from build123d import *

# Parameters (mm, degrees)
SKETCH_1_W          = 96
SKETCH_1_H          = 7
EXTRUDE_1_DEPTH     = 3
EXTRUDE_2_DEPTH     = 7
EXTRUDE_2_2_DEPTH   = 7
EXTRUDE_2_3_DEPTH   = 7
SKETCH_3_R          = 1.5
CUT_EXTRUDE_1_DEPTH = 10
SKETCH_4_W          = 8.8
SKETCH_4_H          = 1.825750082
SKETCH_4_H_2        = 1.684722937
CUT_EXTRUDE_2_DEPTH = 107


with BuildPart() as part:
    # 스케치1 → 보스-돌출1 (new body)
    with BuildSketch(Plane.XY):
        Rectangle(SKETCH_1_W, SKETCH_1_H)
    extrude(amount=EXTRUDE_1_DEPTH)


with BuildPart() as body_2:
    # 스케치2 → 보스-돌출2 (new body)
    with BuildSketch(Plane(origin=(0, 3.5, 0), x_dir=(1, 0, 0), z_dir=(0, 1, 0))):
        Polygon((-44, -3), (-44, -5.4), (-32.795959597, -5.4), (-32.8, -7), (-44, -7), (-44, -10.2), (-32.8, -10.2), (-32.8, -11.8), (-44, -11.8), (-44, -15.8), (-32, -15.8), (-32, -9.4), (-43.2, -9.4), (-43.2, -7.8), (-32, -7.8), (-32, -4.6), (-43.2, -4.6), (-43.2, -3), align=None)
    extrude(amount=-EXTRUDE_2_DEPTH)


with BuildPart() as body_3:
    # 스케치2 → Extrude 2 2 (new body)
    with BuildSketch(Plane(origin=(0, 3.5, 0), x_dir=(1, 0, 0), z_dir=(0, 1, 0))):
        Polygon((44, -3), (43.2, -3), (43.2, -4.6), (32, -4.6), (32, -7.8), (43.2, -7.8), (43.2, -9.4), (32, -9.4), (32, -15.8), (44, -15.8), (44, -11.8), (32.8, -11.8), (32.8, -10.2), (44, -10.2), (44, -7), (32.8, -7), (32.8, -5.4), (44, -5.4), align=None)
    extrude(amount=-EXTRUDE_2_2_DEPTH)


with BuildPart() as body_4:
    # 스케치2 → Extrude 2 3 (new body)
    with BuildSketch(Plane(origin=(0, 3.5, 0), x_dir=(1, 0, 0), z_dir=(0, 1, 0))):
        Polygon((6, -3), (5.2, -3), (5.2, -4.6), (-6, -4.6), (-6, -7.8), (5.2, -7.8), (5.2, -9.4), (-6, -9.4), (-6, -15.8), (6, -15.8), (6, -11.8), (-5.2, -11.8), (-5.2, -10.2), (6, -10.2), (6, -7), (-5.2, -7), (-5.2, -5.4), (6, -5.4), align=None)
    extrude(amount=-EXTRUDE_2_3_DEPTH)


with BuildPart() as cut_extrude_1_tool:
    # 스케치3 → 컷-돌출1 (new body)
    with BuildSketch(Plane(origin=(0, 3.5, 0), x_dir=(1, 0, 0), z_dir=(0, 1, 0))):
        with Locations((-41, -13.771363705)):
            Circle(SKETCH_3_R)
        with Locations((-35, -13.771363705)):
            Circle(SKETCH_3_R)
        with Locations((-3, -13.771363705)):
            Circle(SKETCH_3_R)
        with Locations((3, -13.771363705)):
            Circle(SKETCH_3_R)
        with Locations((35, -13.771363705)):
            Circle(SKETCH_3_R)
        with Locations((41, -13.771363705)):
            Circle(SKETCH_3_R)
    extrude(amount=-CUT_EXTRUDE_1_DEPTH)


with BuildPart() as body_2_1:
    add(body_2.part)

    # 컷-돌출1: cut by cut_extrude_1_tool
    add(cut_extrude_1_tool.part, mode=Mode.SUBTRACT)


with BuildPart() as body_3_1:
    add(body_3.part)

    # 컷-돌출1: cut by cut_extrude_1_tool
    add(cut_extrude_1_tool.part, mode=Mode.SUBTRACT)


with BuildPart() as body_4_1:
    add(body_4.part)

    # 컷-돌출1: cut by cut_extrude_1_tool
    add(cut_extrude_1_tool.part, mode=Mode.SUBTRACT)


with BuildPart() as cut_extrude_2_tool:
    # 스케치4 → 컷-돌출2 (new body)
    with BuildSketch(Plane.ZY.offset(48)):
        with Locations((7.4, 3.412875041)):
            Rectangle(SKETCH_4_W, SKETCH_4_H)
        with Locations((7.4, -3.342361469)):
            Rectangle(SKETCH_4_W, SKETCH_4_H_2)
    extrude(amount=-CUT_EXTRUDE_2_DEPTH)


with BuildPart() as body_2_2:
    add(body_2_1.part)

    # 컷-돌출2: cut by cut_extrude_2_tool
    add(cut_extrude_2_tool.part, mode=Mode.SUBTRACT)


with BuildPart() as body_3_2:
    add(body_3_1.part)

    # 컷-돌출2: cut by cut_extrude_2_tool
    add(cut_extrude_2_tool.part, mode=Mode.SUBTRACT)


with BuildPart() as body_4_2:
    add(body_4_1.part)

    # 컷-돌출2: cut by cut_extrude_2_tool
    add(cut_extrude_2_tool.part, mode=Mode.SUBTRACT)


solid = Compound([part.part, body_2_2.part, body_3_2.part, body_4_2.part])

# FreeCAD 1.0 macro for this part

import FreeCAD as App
import Part
import Sketcher
Q = App.Units.Quantity

doc = App.newDocument("Part")
body = doc.addObject("PartDesign::Body", "Body")

sketch1 = doc.addObject("Sketcher::SketchObject", "Sketch")
body.addObject(sketch1)
sketch1.AttachmentSupport = (doc.XY_Plane, [""])
sketch1.MapMode = "FlatFace"
sketch1.addGeometry([
    Part.LineSegment(App.Vector(-48, 4, 0), App.Vector(-48, -4, 0)),
    Part.LineSegment(App.Vector(-48, -4, 0), App.Vector(48, -4, 0)),
    Part.LineSegment(App.Vector(48, -4, 0), App.Vector(48, 4, 0)),
    Part.LineSegment(App.Vector(48, 4, 0), App.Vector(-48, 4, 0)),
], False)
sketch1.addConstraint([
    Sketcher.Constraint("Coincident", 0, 2, 1, 1),
    Sketcher.Constraint("Coincident", 1, 2, 2, 1),
    Sketcher.Constraint("Coincident", 2, 2, 3, 1),
    Sketcher.Constraint("Coincident", 3, 2, 0, 1),
    Sketcher.Constraint("Vertical", 0),
    Sketcher.Constraint("Horizontal", 1),
    Sketcher.Constraint("Vertical", 2),
    Sketcher.Constraint("Horizontal", 3),
    Sketcher.Constraint("Symmetric", 0, 2, 2, 2, -1, 1),
    Sketcher.Constraint("DistanceX", 1, 1, 1, 2, Q("96 mm")),
    Sketcher.Constraint("DistanceY", 0, 2, 0, 1, Q("7 mm")),
])
pad1 = doc.addObject("PartDesign::Pad", "Pad")
body.addObject(pad1)
pad1.Profile = sketch1
pad1.Length = 3
body2 = doc.addObject("PartDesign::Body", "Body001")

sketch2 = doc.addObject("Sketcher::SketchObject", "Sketch001")
body2.addObject(sketch2)
sketch2.AttachmentSupport = (doc.getObject("XZ_Plane001"), [""])
sketch2.MapMode = "FlatFace"
sketch2.AttachmentOffset = App.Placement(App.Vector(0, 0, -3.5), App.Rotation())
sketch2.addGeometry([
    Part.LineSegment(App.Vector(-44, 3, 0), App.Vector(-44, 5.4, 0)),
    Part.LineSegment(App.Vector(-44, 5.4, 0), App.Vector(-32.8, 5.4, 0)),
    Part.LineSegment(App.Vector(-32.8, 5.4, 0), App.Vector(-32.8, 7, 0)),
    Part.LineSegment(App.Vector(-32.8, 7, 0), App.Vector(-44, 7, 0)),
    Part.LineSegment(App.Vector(-44, 7, 0), App.Vector(-44, 10.2, 0)),
    Part.LineSegment(App.Vector(-44, 10.2, 0), App.Vector(-32.8, 10.2, 0)),
    Part.LineSegment(App.Vector(-32.8, 10.2, 0), App.Vector(-32.8, 11.8, 0)),
    Part.LineSegment(App.Vector(-32.8, 11.8, 0), App.Vector(-44, 11.8, 0)),
    Part.LineSegment(App.Vector(-44, 11.8, 0), App.Vector(-44, 15.8, 0)),
    Part.LineSegment(App.Vector(-44, 15.8, 0), App.Vector(-32, 15.8, 0)),
    Part.LineSegment(App.Vector(-32, 15.8, 0), App.Vector(-32, 9.4, 0)),
    Part.LineSegment(App.Vector(-32, 9.4, 0), App.Vector(-43.2, 9.4, 0)),
    Part.LineSegment(App.Vector(-43.2, 9.4, 0), App.Vector(-43.2, 7.8, 0)),
    Part.LineSegment(App.Vector(-43.2, 7.8, 0), App.Vector(-32, 7.8, 0)),
    Part.LineSegment(App.Vector(-32, 7.8, 0), App.Vector(-32, 4.6, 0)),
    Part.LineSegment(App.Vector(-32, 4.6, 0), App.Vector(-43.2, 4.6, 0)),
    Part.LineSegment(App.Vector(-43.2, 4.6, 0), App.Vector(-43.2, 3, 0)),
    Part.LineSegment(App.Vector(-43.2, 3, 0), App.Vector(-44, 3, 0)),
], False)
sketch2.addConstraint([
    Sketcher.Constraint("Coincident", 0, 2, 1, 1),
    Sketcher.Constraint("Coincident", 1, 2, 2, 1),
    Sketcher.Constraint("Coincident", 2, 2, 3, 1),
    Sketcher.Constraint("Coincident", 3, 2, 4, 1),
    Sketcher.Constraint("Coincident", 4, 2, 5, 1),
    Sketcher.Constraint("Coincident", 5, 2, 6, 1),
    Sketcher.Constraint("Coincident", 6, 2, 7, 1),
    Sketcher.Constraint("Coincident", 7, 2, 8, 1),
    Sketcher.Constraint("Coincident", 8, 2, 9, 1),
    Sketcher.Constraint("Coincident", 9, 2, 10, 1),
    Sketcher.Constraint("Coincident", 10, 2, 11, 1),
    Sketcher.Constraint("Coincident", 11, 2, 12, 1),
    Sketcher.Constraint("Coincident", 12, 2, 13, 1),
    Sketcher.Constraint("Coincident", 13, 2, 14, 1),
    Sketcher.Constraint("Coincident", 14, 2, 15, 1),
    Sketcher.Constraint("Coincident", 15, 2, 16, 1),
    Sketcher.Constraint("Coincident", 16, 2, 17, 1),
    Sketcher.Constraint("Coincident", 17, 2, 0, 1),
    Sketcher.Constraint("Vertical", 0),
    Sketcher.Constraint("Horizontal", 1),
    Sketcher.Constraint("Horizontal", 3),
    Sketcher.Constraint("Vertical", 4),
    Sketcher.Constraint("Horizontal", 5),
    Sketcher.Constraint("Vertical", 6),
    Sketcher.Constraint("Horizontal", 7),
    Sketcher.Constraint("Vertical", 8),
    Sketcher.Constraint("Horizontal", 9),
    Sketcher.Constraint("Vertical", 10),
    Sketcher.Constraint("Horizontal", 11),
    Sketcher.Constraint("Vertical", 12),
    Sketcher.Constraint("Horizontal", 13),
    Sketcher.Constraint("Vertical", 14),
    Sketcher.Constraint("Horizontal", 15),
    Sketcher.Constraint("Vertical", 16),
    Sketcher.Constraint("Horizontal", 17),
    Sketcher.Constraint("Vertical", 0, 2, 3, 2),
    Sketcher.Constraint("Vertical", 2, 2, 5, 2),
    Sketcher.Constraint("Vertical", 4, 2, 7, 2),
    Sketcher.Constraint("Vertical", 10, 2, 13, 2),
    Sketcher.Constraint("Vertical", 12, 2, 15, 2),
    Sketcher.Constraint("Equal", 7, 11),
    Sketcher.Constraint("Equal", 6, 12),
    Sketcher.Constraint("Equal", 4, 14),
    Sketcher.Constraint("Equal", 12, 16),
    Sketcher.Constraint("DistanceX", 9, 1, 9, 2, Q("12 mm")),
    Sketcher.Constraint("DistanceY", 8, 1, 8, 2, Q("4 mm")),
    Sketcher.Constraint("DistanceX", 3, 2, 3, 1, Q("11.2 mm")),
    Sketcher.Constraint("DistanceY", 0, 1, 0, 2, Q("2.4 mm")),
    Sketcher.Constraint("DistanceY", 4, 1, 4, 2, Q("3.2 mm")),
    Sketcher.Constraint("DistanceY", 6, 1, 6, 2, Q("1.6 mm")),
    Sketcher.Constraint("DistanceY", 10, 2, 10, 1, Q("6.4 mm")),
    Sketcher.Constraint("DistanceX", 0, 2, -1, 1, Q("44 mm")),
    Sketcher.Constraint("DistanceY", -1, 1, 2, 2, Q("7 mm")),
    Sketcher.Constraint("DistanceX", 1, 1, 1, 2, Q("11.20404 mm")),
])
pad2 = doc.addObject("PartDesign::Pad", "Pad001")
body2.addObject(pad2)
pad2.Profile = sketch2
pad2.Length = 7
body3 = doc.addObject("PartDesign::Body", "Body002")

sketch3 = doc.addObject("Sketcher::SketchObject", "Sketch002")
body3.addObject(sketch3)
sketch3.AttachmentSupport = (doc.getObject("XZ_Plane002"), [""])
sketch3.MapMode = "FlatFace"
sketch3.AttachmentOffset = App.Placement(App.Vector(0, 0, -3.5), App.Rotation())
sketch3.addGeometry([
    Part.LineSegment(App.Vector(44, 3, 0), App.Vector(43.2, 3, 0)),
    Part.LineSegment(App.Vector(43.2, 3, 0), App.Vector(43.2, 4.6, 0)),
    Part.LineSegment(App.Vector(43.2, 4.6, 0), App.Vector(32, 4.6, 0)),
    Part.LineSegment(App.Vector(32, 4.6, 0), App.Vector(32, 7.8, 0)),
    Part.LineSegment(App.Vector(32, 7.8, 0), App.Vector(43.2, 7.8, 0)),
    Part.LineSegment(App.Vector(43.2, 7.8, 0), App.Vector(43.2, 9.4, 0)),
    Part.LineSegment(App.Vector(43.2, 9.4, 0), App.Vector(32, 9.4, 0)),
    Part.LineSegment(App.Vector(32, 9.4, 0), App.Vector(32, 15.8, 0)),
    Part.LineSegment(App.Vector(32, 15.8, 0), App.Vector(44, 15.8, 0)),
    Part.LineSegment(App.Vector(44, 15.8, 0), App.Vector(44, 11.8, 0)),
    Part.LineSegment(App.Vector(44, 11.8, 0), App.Vector(32.8, 11.8, 0)),
    Part.LineSegment(App.Vector(32.8, 11.8, 0), App.Vector(32.8, 10.2, 0)),
    Part.LineSegment(App.Vector(32.8, 10.2, 0), App.Vector(44, 10.2, 0)),
    Part.LineSegment(App.Vector(44, 10.2, 0), App.Vector(44, 7, 0)),
    Part.LineSegment(App.Vector(44, 7, 0), App.Vector(32.8, 7, 0)),
    Part.LineSegment(App.Vector(32.8, 7, 0), App.Vector(32.8, 5.4, 0)),
    Part.LineSegment(App.Vector(32.8, 5.4, 0), App.Vector(44, 5.4, 0)),
    Part.LineSegment(App.Vector(44, 5.4, 0), App.Vector(44, 3, 0)),
], False)
sketch3.addConstraint([
    Sketcher.Constraint("Coincident", 0, 2, 1, 1),
    Sketcher.Constraint("Coincident", 1, 2, 2, 1),
    Sketcher.Constraint("Coincident", 2, 2, 3, 1),
    Sketcher.Constraint("Coincident", 3, 2, 4, 1),
    Sketcher.Constraint("Coincident", 4, 2, 5, 1),
    Sketcher.Constraint("Coincident", 5, 2, 6, 1),
    Sketcher.Constraint("Coincident", 6, 2, 7, 1),
    Sketcher.Constraint("Coincident", 7, 2, 8, 1),
    Sketcher.Constraint("Coincident", 8, 2, 9, 1),
    Sketcher.Constraint("Coincident", 9, 2, 10, 1),
    Sketcher.Constraint("Coincident", 10, 2, 11, 1),
    Sketcher.Constraint("Coincident", 11, 2, 12, 1),
    Sketcher.Constraint("Coincident", 12, 2, 13, 1),
    Sketcher.Constraint("Coincident", 13, 2, 14, 1),
    Sketcher.Constraint("Coincident", 14, 2, 15, 1),
    Sketcher.Constraint("Coincident", 15, 2, 16, 1),
    Sketcher.Constraint("Coincident", 16, 2, 17, 1),
    Sketcher.Constraint("Coincident", 17, 2, 0, 1),
    Sketcher.Constraint("Horizontal", 0),
    Sketcher.Constraint("Vertical", 1),
    Sketcher.Constraint("Horizontal", 2),
    Sketcher.Constraint("Vertical", 3),
    Sketcher.Constraint("Horizontal", 4),
    Sketcher.Constraint("Vertical", 5),
    Sketcher.Constraint("Horizontal", 6),
    Sketcher.Constraint("Vertical", 7),
    Sketcher.Constraint("Horizontal", 8),
    Sketcher.Constraint("Vertical", 9),
    Sketcher.Constraint("Horizontal", 10),
    Sketcher.Constraint("Vertical", 11),
    Sketcher.Constraint("Horizontal", 12),
    Sketcher.Constraint("Vertical", 13),
    Sketcher.Constraint("Horizontal", 14),
    Sketcher.Constraint("Vertical", 15),
    Sketcher.Constraint("Horizontal", 16),
    Sketcher.Constraint("Vertical", 17),
    Sketcher.Constraint("Vertical", 1, 2, 4, 2),
    Sketcher.Constraint("Vertical", 3, 2, 6, 2),
    Sketcher.Constraint("Vertical", 9, 2, 12, 2),
    Sketcher.Constraint("Vertical", 11, 2, 14, 2),
    Sketcher.Constraint("Vertical", 13, 2, 16, 2),
    Sketcher.Constraint("Equal", 6, 10),
    Sketcher.Constraint("Equal", 1, 5),
    Sketcher.Constraint("Equal", 5, 11),
    Sketcher.Constraint("Equal", 3, 13),
    Sketcher.Constraint("Equal", 11, 15),
    Sketcher.Constraint("DistanceX", 8, 1, 8, 2, Q("12 mm")),
    Sketcher.Constraint("DistanceY", 9, 2, 9, 1, Q("4 mm")),
    Sketcher.Constraint("DistanceX", 0, 2, 0, 1, Q("0.8 mm")),
    Sketcher.Constraint("DistanceY", 1, 1, 1, 2, Q("1.6 mm")),
    Sketcher.Constraint("DistanceY", 3, 1, 3, 2, Q("3.2 mm")),
    Sketcher.Constraint("DistanceY", 7, 1, 7, 2, Q("6.4 mm")),
    Sketcher.Constraint("DistanceY", -1, 1, 0, 2, Q("3 mm")),
    Sketcher.Constraint("DistanceX", -1, 1, 2, 2, Q("32 mm")),
])
pad3 = doc.addObject("PartDesign::Pad", "Pad002")
body3.addObject(pad3)
pad3.Profile = sketch3
pad3.Length = 7
body4 = doc.addObject("PartDesign::Body", "Body003")

sketch4 = doc.addObject("Sketcher::SketchObject", "Sketch003")
body4.addObject(sketch4)
sketch4.AttachmentSupport = (doc.getObject("XZ_Plane003"), [""])
sketch4.MapMode = "FlatFace"
sketch4.AttachmentOffset = App.Placement(App.Vector(0, 0, -3.5), App.Rotation())
sketch4.addGeometry([
    Part.LineSegment(App.Vector(6, 3, 0), App.Vector(5.2, 3, 0)),
    Part.LineSegment(App.Vector(5.2, 3, 0), App.Vector(5.2, 4.6, 0)),
    Part.LineSegment(App.Vector(5.2, 4.6, 0), App.Vector(-6, 4.6, 0)),
    Part.LineSegment(App.Vector(-6, 4.6, 0), App.Vector(-6, 7.8, 0)),
    Part.LineSegment(App.Vector(-6, 7.8, 0), App.Vector(5.2, 7.8, 0)),
    Part.LineSegment(App.Vector(5.2, 7.8, 0), App.Vector(5.2, 9.4, 0)),
    Part.LineSegment(App.Vector(5.2, 9.4, 0), App.Vector(-6, 9.4, 0)),
    Part.LineSegment(App.Vector(-6, 9.4, 0), App.Vector(-6, 15.8, 0)),
    Part.LineSegment(App.Vector(-6, 15.8, 0), App.Vector(6, 15.8, 0)),
    Part.LineSegment(App.Vector(6, 15.8, 0), App.Vector(6, 11.8, 0)),
    Part.LineSegment(App.Vector(6, 11.8, 0), App.Vector(-5.2, 11.8, 0)),
    Part.LineSegment(App.Vector(-5.2, 11.8, 0), App.Vector(-5.2, 10.2, 0)),
    Part.LineSegment(App.Vector(-5.2, 10.2, 0), App.Vector(6, 10.2, 0)),
    Part.LineSegment(App.Vector(6, 10.2, 0), App.Vector(6, 7, 0)),
    Part.LineSegment(App.Vector(6, 7, 0), App.Vector(-5.2, 7, 0)),
    Part.LineSegment(App.Vector(-5.2, 7, 0), App.Vector(-5.2, 5.4, 0)),
    Part.LineSegment(App.Vector(-5.2, 5.4, 0), App.Vector(6, 5.4, 0)),
    Part.LineSegment(App.Vector(6, 5.4, 0), App.Vector(6, 3, 0)),
], False)
sketch4.addConstraint([
    Sketcher.Constraint("Coincident", 0, 2, 1, 1),
    Sketcher.Constraint("Coincident", 1, 2, 2, 1),
    Sketcher.Constraint("Coincident", 2, 2, 3, 1),
    Sketcher.Constraint("Coincident", 3, 2, 4, 1),
    Sketcher.Constraint("Coincident", 4, 2, 5, 1),
    Sketcher.Constraint("Coincident", 5, 2, 6, 1),
    Sketcher.Constraint("Coincident", 6, 2, 7, 1),
    Sketcher.Constraint("Coincident", 7, 2, 8, 1),
    Sketcher.Constraint("Coincident", 8, 2, 9, 1),
    Sketcher.Constraint("Coincident", 9, 2, 10, 1),
    Sketcher.Constraint("Coincident", 10, 2, 11, 1),
    Sketcher.Constraint("Coincident", 11, 2, 12, 1),
    Sketcher.Constraint("Coincident", 12, 2, 13, 1),
    Sketcher.Constraint("Coincident", 13, 2, 14, 1),
    Sketcher.Constraint("Coincident", 14, 2, 15, 1),
    Sketcher.Constraint("Coincident", 15, 2, 16, 1),
    Sketcher.Constraint("Coincident", 16, 2, 17, 1),
    Sketcher.Constraint("Coincident", 17, 2, 0, 1),
    Sketcher.Constraint("Horizontal", 0),
    Sketcher.Constraint("Vertical", 1),
    Sketcher.Constraint("Horizontal", 2),
    Sketcher.Constraint("Vertical", 3),
    Sketcher.Constraint("Horizontal", 4),
    Sketcher.Constraint("Vertical", 5),
    Sketcher.Constraint("Horizontal", 6),
    Sketcher.Constraint("Vertical", 7),
    Sketcher.Constraint("Horizontal", 8),
    Sketcher.Constraint("Vertical", 9),
    Sketcher.Constraint("Horizontal", 10),
    Sketcher.Constraint("Vertical", 11),
    Sketcher.Constraint("Horizontal", 12),
    Sketcher.Constraint("Vertical", 13),
    Sketcher.Constraint("Horizontal", 14),
    Sketcher.Constraint("Vertical", 15),
    Sketcher.Constraint("Horizontal", 16),
    Sketcher.Constraint("Vertical", 17),
    Sketcher.Constraint("Vertical", 1, 2, 4, 2),
    Sketcher.Constraint("Vertical", 3, 2, 6, 2),
    Sketcher.Constraint("Vertical", 9, 2, 12, 2),
    Sketcher.Constraint("Vertical", 11, 2, 14, 2),
    Sketcher.Constraint("Vertical", 13, 2, 16, 2),
    Sketcher.Constraint("Equal", 6, 10),
    Sketcher.Constraint("Equal", 1, 5),
    Sketcher.Constraint("Equal", 5, 11),
    Sketcher.Constraint("Equal", 3, 13),
    Sketcher.Constraint("Equal", 11, 15),
    Sketcher.Constraint("DistanceX", 8, 1, 8, 2, Q("12 mm")),
    Sketcher.Constraint("DistanceY", 9, 2, 9, 1, Q("4 mm")),
    Sketcher.Constraint("DistanceX", 0, 2, 0, 1, Q("0.8 mm")),
    Sketcher.Constraint("DistanceY", 1, 1, 1, 2, Q("1.6 mm")),
    Sketcher.Constraint("DistanceY", 3, 1, 3, 2, Q("3.2 mm")),
    Sketcher.Constraint("DistanceY", 7, 1, 7, 2, Q("6.4 mm")),
    Sketcher.Constraint("DistanceY", -1, 1, 0, 2, Q("3 mm")),
    Sketcher.Constraint("DistanceX", 2, 2, -1, 1, Q("6 mm")),
])
pad4 = doc.addObject("PartDesign::Pad", "Pad003")
body4.addObject(pad4)
pad4.Profile = sketch4
pad4.Length = 7
body5 = doc.addObject("PartDesign::Body", "Body004")
body5.AllowCompound = True

sketch5 = doc.addObject("Sketcher::SketchObject", "Sketch004")
body5.addObject(sketch5)
sketch5.AttachmentSupport = (doc.getObject("XZ_Plane004"), [""])
sketch5.MapMode = "FlatFace"
sketch5.AttachmentOffset = App.Placement(App.Vector(0, 0, -3.5), App.Rotation())
sketch5.addGeometry([
    Part.Circle(App.Vector(-41, 13.8, 0), App.Vector(0, 0, 1), 1.5),
    Part.Circle(App.Vector(-35, 13.8, 0), App.Vector(0, 0, 1), 1.5),
    Part.Circle(App.Vector(-3, 13.8, 0), App.Vector(0, 0, 1), 1.5),
    Part.Circle(App.Vector(3, 13.8, 0), App.Vector(0, 0, 1), 1.5),
    Part.Circle(App.Vector(35, 13.8, 0), App.Vector(0, 0, 1), 1.5),
    Part.Circle(App.Vector(41, 13.8, 0), App.Vector(0, 0, 1), 1.5),
], False)
sketch5.addConstraint([
    Sketcher.Constraint("Equal", 0, 1),
    Sketcher.Constraint("Equal", 1, 2),
    Sketcher.Constraint("Equal", 2, 3),
    Sketcher.Constraint("Equal", 3, 4),
    Sketcher.Constraint("Equal", 4, 5),
    Sketcher.Constraint("Symmetric", 2, 3, 3, 3, -2),
    Sketcher.Constraint("Symmetric", 1, 3, 4, 3, -2),
    Sketcher.Constraint("Symmetric", 0, 3, 5, 3, -2),
    Sketcher.Constraint("Horizontal", 0, 3, 1, 3),
    Sketcher.Constraint("Horizontal", 1, 3, 2, 3),
    Sketcher.Constraint("Diameter", 0, Q("3 mm")),
    Sketcher.Constraint("DistanceX", 0, 3, -1, 1, Q("41 mm")),
    Sketcher.Constraint("DistanceX", 1, 3, -1, 1, Q("35 mm")),
    Sketcher.Constraint("DistanceX", 2, 3, -1, 1, Q("3 mm")),
    Sketcher.Constraint("DistanceY", -1, 1, 0, 3, Q("13.771364 mm")),
])
pad5 = doc.addObject("PartDesign::Pad", "Pad004")
body5.addObject(pad5)
pad5.Profile = sketch5
pad5.Length = 10
doc.recompute()

body6 = doc.addObject("PartDesign::Body", "Body005")
body6.BaseFeature = body5
boolean = doc.addObject("PartDesign::Boolean", "Boolean")
body2.addObject(boolean)
boolean.Type = "Cut"
boolean.addObjects([body6])
doc.recompute()

body7 = doc.addObject("PartDesign::Body", "Body006")
body7.BaseFeature = body5
boolean2 = doc.addObject("PartDesign::Boolean", "Boolean001")
body3.addObject(boolean2)
boolean2.Type = "Cut"
boolean2.addObjects([body7])
doc.recompute()

boolean3 = doc.addObject("PartDesign::Boolean", "Boolean002")
body4.addObject(boolean3)
boolean3.Type = "Cut"
boolean3.addObjects([body5])
body8 = doc.addObject("PartDesign::Body", "Body007")
body8.AllowCompound = True

sketch6 = doc.addObject("Sketcher::SketchObject", "Sketch005")
body8.addObject(sketch6)
sketch6.AttachmentSupport = (doc.getObject("YZ_Plane007"), [""])
sketch6.MapMode = "FlatFace"
sketch6.AttachmentOffset = App.Placement(App.Vector(0, 0, -48), App.Rotation())
sketch6.addGeometry([
    Part.LineSegment(App.Vector(4.3, 3, 0), App.Vector(2.5, 3, 0)),
    Part.LineSegment(App.Vector(2.5, 3, 0), App.Vector(2.5, 11.8, 0)),
    Part.LineSegment(App.Vector(2.5, 11.8, 0), App.Vector(4.3, 11.8, 0)),
    Part.LineSegment(App.Vector(4.3, 11.8, 0), App.Vector(4.3, 3, 0)),
    Part.LineSegment(App.Vector(-2.5, 3, 0), App.Vector(-4.2, 3, 0)),
    Part.LineSegment(App.Vector(-4.2, 3, 0), App.Vector(-4.2, 11.8, 0)),
    Part.LineSegment(App.Vector(-4.2, 11.8, 0), App.Vector(-2.5, 11.8, 0)),
    Part.LineSegment(App.Vector(-2.5, 11.8, 0), App.Vector(-2.5, 3, 0)),
], False)
sketch6.addConstraint([
    Sketcher.Constraint("Coincident", 0, 2, 1, 1),
    Sketcher.Constraint("Coincident", 1, 2, 2, 1),
    Sketcher.Constraint("Coincident", 2, 2, 3, 1),
    Sketcher.Constraint("Coincident", 3, 2, 0, 1),
    Sketcher.Constraint("Coincident", 4, 2, 5, 1),
    Sketcher.Constraint("Coincident", 5, 2, 6, 1),
    Sketcher.Constraint("Coincident", 6, 2, 7, 1),
    Sketcher.Constraint("Coincident", 7, 2, 4, 1),
    Sketcher.Constraint("Horizontal", 0),
    Sketcher.Constraint("Vertical", 1),
    Sketcher.Constraint("Horizontal", 2),
    Sketcher.Constraint("Vertical", 3),
    Sketcher.Constraint("Horizontal", 4),
    Sketcher.Constraint("Vertical", 5),
    Sketcher.Constraint("Horizontal", 6),
    Sketcher.Constraint("Vertical", 7),
    Sketcher.Constraint("Symmetric", 1, 2, 6, 2, -2),
    Sketcher.Constraint("Horizontal", 3, 2, 4, 2),
    Sketcher.Constraint("DistanceY", 1, 1, 1, 2, Q("8.8 mm")),
    Sketcher.Constraint("DistanceY", -1, 1, 0, 2, Q("3 mm")),
    Sketcher.Constraint("DistanceX", 6, 2, 1, 2, Q("5 mm")),
    Sketcher.Constraint("DistanceX", 0, 2, 0, 1, Q("1.82575 mm")),
    Sketcher.Constraint("DistanceX", 4, 2, 4, 1, Q("1.684723 mm")),
])
pad6 = doc.addObject("PartDesign::Pad", "Pad005")
body8.addObject(pad6)
pad6.Profile = sketch6
pad6.Length = 107
doc.recompute()

body9 = doc.addObject("PartDesign::Body", "Body008")
body9.BaseFeature = body8
boolean4 = doc.addObject("PartDesign::Boolean", "Boolean003")
body2.addObject(boolean4)
boolean4.Type = "Cut"
boolean4.addObjects([body9])
doc.recompute()

body10 = doc.addObject("PartDesign::Body", "Body009")
body10.BaseFeature = body8
boolean5 = doc.addObject("PartDesign::Boolean", "Boolean004")
body3.addObject(boolean5)
boolean5.Type = "Cut"
boolean5.addObjects([body10])
doc.recompute()

boolean6 = doc.addObject("PartDesign::Boolean", "Boolean005")
body4.addObject(boolean6)
boolean6.Type = "Cut"
boolean6.addObjects([body8])

doc.recompute()
